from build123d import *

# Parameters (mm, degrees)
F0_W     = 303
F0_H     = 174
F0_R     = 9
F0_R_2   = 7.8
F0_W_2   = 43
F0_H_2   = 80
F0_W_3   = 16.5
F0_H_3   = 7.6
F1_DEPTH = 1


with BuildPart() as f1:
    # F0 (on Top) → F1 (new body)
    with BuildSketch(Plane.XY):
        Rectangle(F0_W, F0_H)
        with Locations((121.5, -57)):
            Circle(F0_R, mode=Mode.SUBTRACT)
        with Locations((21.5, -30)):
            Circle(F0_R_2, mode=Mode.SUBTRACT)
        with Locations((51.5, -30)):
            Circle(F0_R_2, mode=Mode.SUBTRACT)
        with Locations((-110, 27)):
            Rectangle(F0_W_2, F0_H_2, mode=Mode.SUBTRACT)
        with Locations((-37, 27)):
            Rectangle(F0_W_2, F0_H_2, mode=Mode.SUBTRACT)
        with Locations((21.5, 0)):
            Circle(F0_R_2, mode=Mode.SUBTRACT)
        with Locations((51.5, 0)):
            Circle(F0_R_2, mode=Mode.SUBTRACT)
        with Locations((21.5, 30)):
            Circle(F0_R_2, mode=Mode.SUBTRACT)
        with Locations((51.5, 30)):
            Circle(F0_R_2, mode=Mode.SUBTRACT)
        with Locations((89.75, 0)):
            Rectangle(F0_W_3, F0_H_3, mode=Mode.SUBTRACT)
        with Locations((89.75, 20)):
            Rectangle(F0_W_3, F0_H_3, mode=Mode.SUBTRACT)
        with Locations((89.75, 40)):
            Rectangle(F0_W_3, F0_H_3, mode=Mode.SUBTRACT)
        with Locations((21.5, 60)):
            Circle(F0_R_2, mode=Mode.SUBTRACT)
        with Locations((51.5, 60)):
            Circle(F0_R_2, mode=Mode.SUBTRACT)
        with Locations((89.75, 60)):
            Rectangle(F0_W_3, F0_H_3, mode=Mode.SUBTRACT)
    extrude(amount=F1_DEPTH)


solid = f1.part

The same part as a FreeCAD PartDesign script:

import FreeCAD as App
import Part
import Sketcher

V = App.Vector


def add_polygon(sketch, points):
    """Adds a closed chain of lines whose ends are joined by coincident constraints."""
    first, n = sketch.GeometryCount, len(points)
    for a, b in zip(points, points[1:] + points[:1]):
        sketch.addGeometry(Part.LineSegment(App.Vector(*a, 0), App.Vector(*b, 0)), False)
    for i in range(n):
        sketch.addConstraint(Sketcher.Constraint("Coincident", first + i, 2, first + (i + 1) % n, 1))

doc = App.newDocument("Part")
body = doc.addObject("PartDesign::Body", "Body")

# Sketch on XY plane
sketch1 = body.newObject("Sketcher::SketchObject", "Sketch")
sketch1.AttachmentSupport = (doc.getObject("XY_Plane"), [""])
sketch1.MapMode = "FlatFace"
add_polygon(sketch1, [(-152, 87), (-152, -87), (152, -87), (152, 87)])  # lines 0-3
sketch1.addGeometry(Part.Circle(V(122, -57, 0), V(0, 0, 1), 9), False)  # 4
sketch1.addGeometry(Part.Circle(V(22, -30, 0), V(0, 0, 1), 8), False)  # 5
sketch1.addGeometry(Part.Circle(V(52, -30, 0), V(0, 0, 1), 8), False)  # 6
sketch1.addGeometry(Part.Circle(V(22, 0, 0), V(0, 0, 1), 8), False)  # 7
sketch1.addGeometry(Part.Circle(V(52, 0, 0), V(0, 0, 1), 8), False)  # 8
add_polygon(sketch1, [(98, -4), (82, -4), (82, 4), (98, 4)])  # lines 9-12
add_polygon(sketch1, [(-88, -13), (-132, -13), (-132, 67), (-88, 67)])  # lines 13-16
add_polygon(sketch1, [(-16, -13), (-58, -13), (-58, 67), (-16, 67)])  # lines 17-20
sketch1.addGeometry(Part.Circle(V(22, 30, 0), V(0, 0, 1), 8), False)  # 21
sketch1.addGeometry(Part.Circle(V(52, 30, 0), V(0, 0, 1), 8), False)  # 22
add_polygon(sketch1, [(98, 16), (82, 16), (82, 24), (98, 24)])  # lines 23-26
sketch1.addGeometry(Part.Circle(V(22, 60, 0), V(0, 0, 1), 8), False)  # 27
sketch1.addGeometry(Part.Circle(V(52, 60, 0), V(0, 0, 1), 8), False)  # 28
add_polygon(sketch1, [(98, 36), (82, 36), (82, 44), (98, 44)])  # lines 29-32
add_polygon(sketch1, [(98, 56), (82, 56), (82, 64), (98, 64)])  # lines 33-36
sketch1.addConstraint([
    Sketcher.Constraint("Vertical", 0),
    Sketcher.Constraint("Horizontal", 1),
    Sketcher.Constraint("Vertical", 2),
    Sketcher.Constraint("Horizontal", 3),
    Sketcher.Constraint("Horizontal", 9),
    Sketcher.Constraint("Vertical", 10),
    Sketcher.Constraint("Horizontal", 11),
    Sketcher.Constraint("Vertical", 12),
    Sketcher.Constraint("Horizontal", 13),
    Sketcher.Constraint("Vertical", 14),
    Sketcher.Constraint("Horizontal", 15),
    Sketcher.Constraint("Vertical", 16),
    Sketcher.Constraint("Horizontal", 17),
    Sketcher.Constraint("Vertical", 18),
    Sketcher.Constraint("Horizontal", 19),
    Sketcher.Constraint("Vertical", 20),
    Sketcher.Constraint("Horizontal", 23),
    Sketcher.Constraint("Vertical", 24),
    Sketcher.Constraint("Horizontal", 25),
    Sketcher.Constraint("Vertical", 26),
    Sketcher.Constraint("Horizontal", 29),
    Sketcher.Constraint("Vertical", 30),
    Sketcher.Constraint("Horizontal", 31),
    Sketcher.Constraint("Vertical", 32),
    Sketcher.Constraint("Horizontal", 33),
    Sketcher.Constraint("Vertical", 34),
    Sketcher.Constraint("Horizontal", 35),
    Sketcher.Constraint("Vertical", 36),
    Sketcher.Constraint("Equal", 5, 6),
    Sketcher.Constraint("Equal", 6, 7),
    Sketcher.Constraint("Equal", 7, 8),
    Sketcher.Constraint("Equal", 8, 21),
    Sketcher.Constraint("Equal", 21, 22),
    Sketcher.Constraint("Equal", 22, 27),
    Sketcher.Constraint("Equal", 27, 28),
    Sketcher.Constraint("Symmetric", 0, 2, 2, 2, -1, 1),
    Sketcher.Constraint("Symmetric", 5, 3, 21, 3, -1),
    Sketcher.Constraint("Symmetric", 6, 3, 22, 3, -1),
    Sketcher.Constraint("PointOnObject", 7, 3, -1),
    Sketcher.Constraint("PointOnObject", 8, 3, -1),
    Sketcher.Constraint("Horizontal", 5, 3, 6, 3),
    Sketcher.Constraint("Horizontal", 27, 3, 28, 3),
    Sketcher.Constraint("Horizontal", 16, 2, 17, 2),
    Sketcher.Constraint("Horizontal", 15, 2, 18, 2),
    Sketcher.Constraint("Vertical", 5, 3, 7, 3),
    Sketcher.Constraint("Vertical", 6, 3, 8, 3),
    Sketcher.Constraint("Vertical", 21, 3, 27, 3),
    Sketcher.Constraint("Vertical", 22, 3, 28, 3),
    Sketcher.Constraint("Vertical", 10, 2, 23, 2),
    Sketcher.Constraint("Vertical", 12, 2, 25, 2),
    Sketcher.Constraint("Vertical", 24, 2, 29, 2),
    Sketcher.Constraint("Vertical", 26, 2, 31, 2),
    Sketcher.Constraint("Vertical", 30, 2, 33, 2),
    Sketcher.Constraint("Vertical", 32, 2, 35, 2),
    Sketcher.Constraint("Equal", 15, 17),
    Sketcher.Constraint("Equal", 12, 24),
    Sketcher.Constraint("Equal", 26, 30),
    Sketcher.Constraint("Equal", 32, 34),
    Sketcher.Constraint("Diameter", 4, 18.0),
    Sketcher.Constraint("Diameter", 5, 15.6),
    Sketcher.Constraint("DistanceX", 1, 1, 1, 2, 303.0),
    Sketcher.Constraint("DistanceX", 13, 2, 13, 1, 43.0),
    Sketcher.Constraint("DistanceY", 0, 2, 0, 1, 174.0),
    Sketcher.Constraint("DistanceY", 14, 1, 14, 2, 80.0),
    Sketcher.Constraint("DistanceX", 9, 2, 9, 1, 16.5),
    Sketcher.Constraint("DistanceY", 10, 1, 10, 2, 7.6),
    Sketcher.Constraint("DistanceY", 4, 3, -1, 1, 57.0),
    Sketcher.Constraint("DistanceY", 5, 3, -1, 1, 30.0),
    Sketcher.Constraint("DistanceY", -1, 1, 27, 3, 60.0),
    Sketcher.Constraint("DistanceX", -1, 1, 11, 2, 98.0),
    Sketcher.Constraint("DistanceY", 13, 2, -1, 1, 13.0),
    Sketcher.Constraint("DistanceX", 5, 3, 4, 3, 100.0),
    Sketcher.Constraint("DistanceX", 5, 3, 6, 3, 30.0),
    Sketcher.Constraint("DistanceX", 0, 2, 5, 3, 173.0),
    Sketcher.Constraint("DistanceX", 0, 2, 13, 2, 20.0),
    Sketcher.Constraint("DistanceX", 16, 2, 17, 2, 30.0),
    Sketcher.Constraint("DistanceY", 9, 2, 23, 2, 20.0),
    Sketcher.Constraint("DistanceY", 23, 2, 29, 2, 20.0),
    Sketcher.Constraint("DistanceY", 29, 2, 33, 2, 20.0),
    Sketcher.Constraint("DistanceY", 9, 2, -1, 1, 3.8),
])
pad1 = body.newObject("PartDesign::Pad", "Pad")
pad1.Profile = sketch1
pad1.Length = 1

doc.recompute()
